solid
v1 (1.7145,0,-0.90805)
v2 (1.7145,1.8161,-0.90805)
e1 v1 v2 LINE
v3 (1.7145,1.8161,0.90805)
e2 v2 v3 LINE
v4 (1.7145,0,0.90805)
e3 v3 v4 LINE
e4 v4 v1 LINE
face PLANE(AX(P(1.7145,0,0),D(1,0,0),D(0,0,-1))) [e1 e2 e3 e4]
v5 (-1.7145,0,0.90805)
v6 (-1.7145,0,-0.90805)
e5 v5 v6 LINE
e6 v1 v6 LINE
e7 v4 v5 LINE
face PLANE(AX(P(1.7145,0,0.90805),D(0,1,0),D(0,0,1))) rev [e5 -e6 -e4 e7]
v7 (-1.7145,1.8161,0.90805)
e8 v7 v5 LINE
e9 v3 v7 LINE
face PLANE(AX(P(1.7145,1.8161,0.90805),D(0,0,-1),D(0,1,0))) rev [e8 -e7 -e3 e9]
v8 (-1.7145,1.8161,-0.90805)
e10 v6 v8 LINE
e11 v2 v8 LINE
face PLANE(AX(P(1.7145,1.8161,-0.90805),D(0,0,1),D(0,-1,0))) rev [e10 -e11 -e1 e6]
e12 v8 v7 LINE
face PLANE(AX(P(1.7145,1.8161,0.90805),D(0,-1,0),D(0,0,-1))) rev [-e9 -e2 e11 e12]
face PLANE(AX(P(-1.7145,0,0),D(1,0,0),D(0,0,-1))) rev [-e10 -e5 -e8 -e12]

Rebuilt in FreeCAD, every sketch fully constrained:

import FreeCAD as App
import Part
import Sketcher
from FreeCAD import Vector
Q = App.Units.Quantity


def add_polygon(sketch, points):
    """Adds a closed chain of lines whose ends are joined by coincident constraints."""
    first, n = sketch.GeometryCount, len(points)
    for a, b in zip(points, points[1:] + points[:1]):
        sketch.addGeometry(Part.LineSegment(App.Vector(*a, 0), App.Vector(*b, 0)), False)
    for i in range(n):
        sketch.addConstraint(Sketcher.Constraint("Coincident", first + i, 2, first + (i + 1) % n, 1))

doc = App.newDocument("Part")
body = doc.addObject("PartDesign::Body", "Body")

# Sketch on YZ plane
sketch1 = body.newObject("Sketcher::SketchObject", "Sketch")
sketch1.AttachmentSupport = (doc.getObject("YZ_Plane"), [""])
sketch1.MapMode = "FlatFace"
add_polygon(sketch1, [(1.8161, 0.90805), (0, 0.90805), (0, -0.90805), (1.8161, -0.90805)])  # lines 0-3
sketch1.addConstraint([
    Sketcher.Constraint("Horizontal", 0),
    Sketcher.Constraint("Vertical", 1),
    Sketcher.Constraint("Horizontal", 2),
    Sketcher.Constraint("Vertical", 3),
    Sketcher.Constraint("Symmetric", 0, 2, 1, 2, -1, 1),
    Sketcher.Constraint("Equal", 2, 1),
    Sketcher.Constraint("DistanceX", 0, 2, 0, 1, Q("1.8161 mm")),
])
pad1 = body.newObject("PartDesign::Pad", "Pad")
pad1.Profile = sketch1
pad1.Length = 3.429
pad1.Midplane = True

doc.recompute()
